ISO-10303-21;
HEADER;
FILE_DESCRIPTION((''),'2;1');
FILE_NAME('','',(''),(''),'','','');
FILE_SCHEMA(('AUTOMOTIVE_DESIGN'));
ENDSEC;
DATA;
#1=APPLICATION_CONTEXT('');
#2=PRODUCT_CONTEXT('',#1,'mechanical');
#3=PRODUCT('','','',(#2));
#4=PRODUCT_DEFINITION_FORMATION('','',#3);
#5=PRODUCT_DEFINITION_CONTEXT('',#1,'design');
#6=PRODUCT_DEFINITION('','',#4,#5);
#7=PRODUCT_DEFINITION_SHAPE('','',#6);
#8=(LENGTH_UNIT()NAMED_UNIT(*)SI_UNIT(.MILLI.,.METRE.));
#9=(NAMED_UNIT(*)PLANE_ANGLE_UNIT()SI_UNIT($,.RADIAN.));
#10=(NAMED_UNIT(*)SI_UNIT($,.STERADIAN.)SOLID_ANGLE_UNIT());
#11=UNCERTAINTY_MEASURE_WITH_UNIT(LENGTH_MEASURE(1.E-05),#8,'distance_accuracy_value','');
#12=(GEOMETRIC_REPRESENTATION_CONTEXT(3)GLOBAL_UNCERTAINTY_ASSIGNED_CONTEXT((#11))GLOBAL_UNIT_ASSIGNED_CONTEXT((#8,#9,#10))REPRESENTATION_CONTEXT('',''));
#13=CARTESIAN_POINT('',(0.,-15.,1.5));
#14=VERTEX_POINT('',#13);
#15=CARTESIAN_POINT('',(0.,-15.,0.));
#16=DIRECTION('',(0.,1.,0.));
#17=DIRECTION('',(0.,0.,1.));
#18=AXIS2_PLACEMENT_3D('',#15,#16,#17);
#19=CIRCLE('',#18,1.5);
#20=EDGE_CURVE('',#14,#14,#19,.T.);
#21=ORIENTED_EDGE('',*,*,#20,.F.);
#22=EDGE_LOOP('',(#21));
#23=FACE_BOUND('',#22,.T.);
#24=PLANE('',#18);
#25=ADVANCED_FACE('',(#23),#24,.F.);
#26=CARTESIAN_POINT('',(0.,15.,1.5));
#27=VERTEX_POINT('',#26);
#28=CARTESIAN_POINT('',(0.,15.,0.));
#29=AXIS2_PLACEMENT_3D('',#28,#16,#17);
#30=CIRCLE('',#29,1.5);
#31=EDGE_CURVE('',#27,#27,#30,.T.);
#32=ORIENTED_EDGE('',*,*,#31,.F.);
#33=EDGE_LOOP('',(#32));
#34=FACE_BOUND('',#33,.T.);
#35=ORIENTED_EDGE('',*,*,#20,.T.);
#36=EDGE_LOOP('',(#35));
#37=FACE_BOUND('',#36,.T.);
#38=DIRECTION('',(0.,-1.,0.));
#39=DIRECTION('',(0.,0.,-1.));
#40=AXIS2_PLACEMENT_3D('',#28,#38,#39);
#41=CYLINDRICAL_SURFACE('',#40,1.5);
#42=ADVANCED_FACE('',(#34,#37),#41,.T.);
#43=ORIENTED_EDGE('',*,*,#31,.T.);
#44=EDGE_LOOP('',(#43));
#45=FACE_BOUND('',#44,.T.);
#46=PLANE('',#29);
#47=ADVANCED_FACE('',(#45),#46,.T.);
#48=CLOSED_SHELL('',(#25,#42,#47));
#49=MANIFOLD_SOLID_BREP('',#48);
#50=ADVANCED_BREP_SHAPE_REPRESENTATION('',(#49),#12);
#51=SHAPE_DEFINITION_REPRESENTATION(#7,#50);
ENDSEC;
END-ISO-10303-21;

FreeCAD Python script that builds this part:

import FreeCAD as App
import Part
import Sketcher

doc = App.newDocument("Part")
body = doc.addObject("PartDesign::Body", "Body")

# Sketch on XZ plane
sketch1 = body.newObject("Sketcher::SketchObject", "Sketch")
sketch1.AttachmentSupport = (doc.getObject("XZ_Plane"), [""])
sketch1.MapMode = "FlatFace"
sketch1.addGeometry(Part.Circle(App.Vector(0, 0, 0), App.Vector(0, 0, 1), 1.5), False)
sketch1.addConstraint([
    Sketcher.Constraint("Coincident", 0, 3, -1, 1),
    Sketcher.Constraint("Diameter", 0, 3.0),
])
pad1 = body.newObject("PartDesign::Pad", "Pad")
pad1.Profile = sketch1
pad1.Length = 30
pad1.Midplane = True

doc.recompute()
